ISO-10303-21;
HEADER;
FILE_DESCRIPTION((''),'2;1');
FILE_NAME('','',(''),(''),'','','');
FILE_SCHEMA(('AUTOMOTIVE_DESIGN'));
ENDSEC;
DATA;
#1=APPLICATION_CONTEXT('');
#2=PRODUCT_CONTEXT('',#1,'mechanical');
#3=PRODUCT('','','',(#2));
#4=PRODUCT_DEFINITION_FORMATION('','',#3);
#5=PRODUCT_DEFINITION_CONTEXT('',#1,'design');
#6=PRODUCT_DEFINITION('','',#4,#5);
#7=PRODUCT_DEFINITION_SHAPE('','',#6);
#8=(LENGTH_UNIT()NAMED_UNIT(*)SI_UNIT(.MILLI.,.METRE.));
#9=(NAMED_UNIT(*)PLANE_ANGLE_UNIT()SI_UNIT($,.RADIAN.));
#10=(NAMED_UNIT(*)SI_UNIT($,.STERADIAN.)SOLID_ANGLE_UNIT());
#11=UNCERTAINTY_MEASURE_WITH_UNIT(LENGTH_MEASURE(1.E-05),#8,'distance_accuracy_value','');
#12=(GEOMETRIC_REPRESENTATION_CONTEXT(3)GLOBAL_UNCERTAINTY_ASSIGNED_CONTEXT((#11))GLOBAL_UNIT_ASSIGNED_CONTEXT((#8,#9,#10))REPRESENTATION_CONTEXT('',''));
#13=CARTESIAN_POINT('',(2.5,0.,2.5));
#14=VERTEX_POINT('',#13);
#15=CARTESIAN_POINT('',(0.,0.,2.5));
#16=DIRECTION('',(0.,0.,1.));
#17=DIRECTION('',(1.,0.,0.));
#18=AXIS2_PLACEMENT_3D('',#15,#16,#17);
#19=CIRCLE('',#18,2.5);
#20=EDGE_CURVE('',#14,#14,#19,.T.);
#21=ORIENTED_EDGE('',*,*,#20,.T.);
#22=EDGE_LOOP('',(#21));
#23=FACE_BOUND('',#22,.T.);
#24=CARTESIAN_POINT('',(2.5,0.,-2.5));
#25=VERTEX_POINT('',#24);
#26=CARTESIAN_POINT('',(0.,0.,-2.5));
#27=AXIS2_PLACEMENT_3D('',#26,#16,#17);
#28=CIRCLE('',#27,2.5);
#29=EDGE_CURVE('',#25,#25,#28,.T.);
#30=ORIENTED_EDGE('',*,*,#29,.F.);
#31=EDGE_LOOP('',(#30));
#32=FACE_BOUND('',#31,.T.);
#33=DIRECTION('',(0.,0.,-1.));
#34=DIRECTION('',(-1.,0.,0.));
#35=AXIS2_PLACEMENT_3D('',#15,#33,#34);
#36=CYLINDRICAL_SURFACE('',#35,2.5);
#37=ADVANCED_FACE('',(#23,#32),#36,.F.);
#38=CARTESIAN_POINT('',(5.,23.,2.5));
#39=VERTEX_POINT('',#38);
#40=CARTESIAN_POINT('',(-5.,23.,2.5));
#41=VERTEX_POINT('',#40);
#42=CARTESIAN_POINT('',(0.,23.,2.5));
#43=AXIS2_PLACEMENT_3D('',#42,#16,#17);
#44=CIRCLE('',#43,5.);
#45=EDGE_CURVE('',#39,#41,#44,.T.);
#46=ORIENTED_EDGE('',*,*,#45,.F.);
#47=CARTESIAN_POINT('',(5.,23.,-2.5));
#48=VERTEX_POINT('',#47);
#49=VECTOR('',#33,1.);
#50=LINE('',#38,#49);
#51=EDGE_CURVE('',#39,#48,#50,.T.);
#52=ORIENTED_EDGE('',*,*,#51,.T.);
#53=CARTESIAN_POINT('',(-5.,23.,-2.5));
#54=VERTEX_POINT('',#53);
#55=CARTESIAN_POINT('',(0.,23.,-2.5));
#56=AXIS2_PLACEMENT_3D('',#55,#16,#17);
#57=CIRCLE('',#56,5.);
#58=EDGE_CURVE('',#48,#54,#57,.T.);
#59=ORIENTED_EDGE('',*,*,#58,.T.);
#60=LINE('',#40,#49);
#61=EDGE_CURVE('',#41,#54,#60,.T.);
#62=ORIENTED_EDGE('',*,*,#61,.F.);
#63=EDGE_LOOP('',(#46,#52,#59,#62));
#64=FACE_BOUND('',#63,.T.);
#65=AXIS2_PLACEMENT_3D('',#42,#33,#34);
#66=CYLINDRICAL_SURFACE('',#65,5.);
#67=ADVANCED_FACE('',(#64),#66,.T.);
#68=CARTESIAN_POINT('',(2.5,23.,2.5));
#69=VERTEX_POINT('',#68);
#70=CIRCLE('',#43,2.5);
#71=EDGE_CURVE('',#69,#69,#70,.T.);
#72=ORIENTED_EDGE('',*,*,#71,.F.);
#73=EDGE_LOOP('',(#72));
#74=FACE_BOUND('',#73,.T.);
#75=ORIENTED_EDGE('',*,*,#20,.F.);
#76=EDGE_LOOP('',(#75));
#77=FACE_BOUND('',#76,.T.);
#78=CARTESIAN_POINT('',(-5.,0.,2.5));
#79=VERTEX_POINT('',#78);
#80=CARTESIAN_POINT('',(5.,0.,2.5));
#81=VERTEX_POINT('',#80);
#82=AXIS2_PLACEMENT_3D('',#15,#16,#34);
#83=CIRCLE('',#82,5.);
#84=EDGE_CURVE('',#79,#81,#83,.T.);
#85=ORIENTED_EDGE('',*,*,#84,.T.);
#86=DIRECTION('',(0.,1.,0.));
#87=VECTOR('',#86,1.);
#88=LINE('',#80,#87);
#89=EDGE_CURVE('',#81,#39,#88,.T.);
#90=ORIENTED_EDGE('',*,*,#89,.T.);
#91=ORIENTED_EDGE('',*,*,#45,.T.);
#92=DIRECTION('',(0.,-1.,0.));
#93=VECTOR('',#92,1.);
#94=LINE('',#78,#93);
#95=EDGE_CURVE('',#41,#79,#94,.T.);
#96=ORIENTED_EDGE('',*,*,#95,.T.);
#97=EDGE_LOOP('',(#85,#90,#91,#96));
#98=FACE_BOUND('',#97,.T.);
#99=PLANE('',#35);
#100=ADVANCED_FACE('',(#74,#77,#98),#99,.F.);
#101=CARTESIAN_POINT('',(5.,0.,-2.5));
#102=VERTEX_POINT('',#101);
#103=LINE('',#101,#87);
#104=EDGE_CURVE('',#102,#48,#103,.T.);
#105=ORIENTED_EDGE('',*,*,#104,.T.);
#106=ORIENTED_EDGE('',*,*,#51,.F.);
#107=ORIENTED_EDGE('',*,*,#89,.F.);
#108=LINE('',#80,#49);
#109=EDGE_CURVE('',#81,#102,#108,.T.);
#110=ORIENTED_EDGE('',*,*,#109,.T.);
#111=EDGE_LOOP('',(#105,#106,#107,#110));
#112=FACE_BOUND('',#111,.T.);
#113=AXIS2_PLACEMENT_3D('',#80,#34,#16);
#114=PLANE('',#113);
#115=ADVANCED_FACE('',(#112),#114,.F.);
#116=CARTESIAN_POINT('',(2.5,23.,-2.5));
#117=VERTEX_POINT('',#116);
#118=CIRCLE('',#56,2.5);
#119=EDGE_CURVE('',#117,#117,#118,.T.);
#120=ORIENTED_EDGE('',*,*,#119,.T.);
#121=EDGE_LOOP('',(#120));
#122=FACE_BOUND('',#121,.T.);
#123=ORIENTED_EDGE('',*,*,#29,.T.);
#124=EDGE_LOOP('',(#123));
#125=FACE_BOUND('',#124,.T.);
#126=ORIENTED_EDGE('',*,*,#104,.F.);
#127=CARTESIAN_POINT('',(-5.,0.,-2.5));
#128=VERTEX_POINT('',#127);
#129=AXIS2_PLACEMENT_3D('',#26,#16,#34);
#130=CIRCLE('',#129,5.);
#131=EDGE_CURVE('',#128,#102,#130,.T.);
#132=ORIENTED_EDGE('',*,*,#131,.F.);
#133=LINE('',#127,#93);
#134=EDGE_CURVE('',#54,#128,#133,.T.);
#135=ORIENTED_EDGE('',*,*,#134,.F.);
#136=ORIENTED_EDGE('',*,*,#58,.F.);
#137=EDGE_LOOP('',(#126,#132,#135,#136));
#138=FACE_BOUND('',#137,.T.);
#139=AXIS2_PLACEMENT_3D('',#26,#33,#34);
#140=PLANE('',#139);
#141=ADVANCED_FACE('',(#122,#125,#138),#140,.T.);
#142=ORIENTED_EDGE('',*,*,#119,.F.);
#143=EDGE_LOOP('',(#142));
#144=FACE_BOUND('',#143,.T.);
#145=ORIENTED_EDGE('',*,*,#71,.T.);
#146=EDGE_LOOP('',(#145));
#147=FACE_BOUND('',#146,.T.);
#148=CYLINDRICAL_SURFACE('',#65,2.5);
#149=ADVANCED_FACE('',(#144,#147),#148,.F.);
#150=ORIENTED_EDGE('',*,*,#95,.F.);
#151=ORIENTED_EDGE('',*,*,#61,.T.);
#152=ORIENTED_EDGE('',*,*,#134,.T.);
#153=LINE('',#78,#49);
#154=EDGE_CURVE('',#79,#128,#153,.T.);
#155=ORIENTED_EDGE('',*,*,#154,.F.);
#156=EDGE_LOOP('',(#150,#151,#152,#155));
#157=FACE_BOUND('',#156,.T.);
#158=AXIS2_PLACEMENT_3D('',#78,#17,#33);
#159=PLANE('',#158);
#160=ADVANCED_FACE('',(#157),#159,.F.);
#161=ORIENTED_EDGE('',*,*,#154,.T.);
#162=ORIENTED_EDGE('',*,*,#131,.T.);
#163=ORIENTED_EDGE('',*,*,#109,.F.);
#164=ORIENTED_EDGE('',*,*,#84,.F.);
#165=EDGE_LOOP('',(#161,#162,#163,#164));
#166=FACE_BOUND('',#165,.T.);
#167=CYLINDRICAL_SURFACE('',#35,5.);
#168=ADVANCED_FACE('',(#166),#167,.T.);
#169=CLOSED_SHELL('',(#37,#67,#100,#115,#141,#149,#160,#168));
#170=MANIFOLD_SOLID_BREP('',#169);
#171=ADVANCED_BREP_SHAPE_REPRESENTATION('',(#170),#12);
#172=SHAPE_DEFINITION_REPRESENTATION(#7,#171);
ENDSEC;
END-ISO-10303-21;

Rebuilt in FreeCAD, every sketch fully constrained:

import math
import FreeCAD as App
import Part
import Sketcher

V = App.Vector

doc = App.newDocument("Part")
body = doc.addObject("PartDesign::Body", "Body")

# Sketch on XY plane
sketch1 = doc.addObject("Sketcher::SketchObject", "Sketch")
body.addObject(sketch1)
sketch1.AttachmentSupport = (doc.XY_Plane, [""])
sketch1.MapMode = "FlatFace"
sketch1.addGeometry(Part.LineSegment(V(5, 0, 0), V(5, 23, 0)), False)
sketch1.addGeometry(Part.ArcOfCircle(Part.Circle(V(0, 23, 0), V(0, 0, 1), 5), math.radians(0), math.radians(180)), False)
sketch1.addGeometry(Part.LineSegment(V(-5, 23, 0), V(-5, 0, 0)), False)
sketch1.addGeometry(Part.ArcOfCircle(Part.Circle(V(0, 0, 0), V(0, 0, 1), 5), math.radians(180), math.radians(360)), False)
sketch1.addGeometry(Part.Circle(V(0, 0, 0), V(0, 0, 1), 2.5), False)
sketch1.addGeometry(Part.Circle(V(0, 23, 0), V(0, 0, 1), 2.5), False)
sketch1.addConstraint(Sketcher.Constraint("Tangent", 0, 2, 1, 1))
sketch1.addConstraint(Sketcher.Constraint("Tangent", 1, 2, 2, 1))
sketch1.addConstraint(Sketcher.Constraint("Tangent", 2, 2, 3, 1))
sketch1.addConstraint(Sketcher.Constraint("Tangent", 3, 2, 0, 1))
sketch1.addConstraint(Sketcher.Constraint("Vertical", 0))
sketch1.addConstraint(Sketcher.Constraint("Vertical", 2))
sketch1.addConstraint(Sketcher.Constraint("Coincident", 3, 3, -1, 1))
sketch1.addConstraint(Sketcher.Constraint("Coincident", 4, 3, -1, 1))
sketch1.addConstraint(Sketcher.Constraint("Coincident", 5, 3, 1, 3))
sketch1.addConstraint(Sketcher.Constraint("Equal", 4, 5))
sketch1.addConstraint(Sketcher.Constraint("Diameter", 4, 5.0))
sketch1.addConstraint(Sketcher.Constraint("Radius", 1, 5.0))
sketch1.addConstraint(Sketcher.Constraint("DistanceY", 0, 1, 0, 2, 23.0))
pad1 = doc.addObject("PartDesign::Pad", "Pad")
body.addObject(pad1)
pad1.Profile = sketch1
pad1.Length = 5
pad1.Midplane = True

doc.recompute()
